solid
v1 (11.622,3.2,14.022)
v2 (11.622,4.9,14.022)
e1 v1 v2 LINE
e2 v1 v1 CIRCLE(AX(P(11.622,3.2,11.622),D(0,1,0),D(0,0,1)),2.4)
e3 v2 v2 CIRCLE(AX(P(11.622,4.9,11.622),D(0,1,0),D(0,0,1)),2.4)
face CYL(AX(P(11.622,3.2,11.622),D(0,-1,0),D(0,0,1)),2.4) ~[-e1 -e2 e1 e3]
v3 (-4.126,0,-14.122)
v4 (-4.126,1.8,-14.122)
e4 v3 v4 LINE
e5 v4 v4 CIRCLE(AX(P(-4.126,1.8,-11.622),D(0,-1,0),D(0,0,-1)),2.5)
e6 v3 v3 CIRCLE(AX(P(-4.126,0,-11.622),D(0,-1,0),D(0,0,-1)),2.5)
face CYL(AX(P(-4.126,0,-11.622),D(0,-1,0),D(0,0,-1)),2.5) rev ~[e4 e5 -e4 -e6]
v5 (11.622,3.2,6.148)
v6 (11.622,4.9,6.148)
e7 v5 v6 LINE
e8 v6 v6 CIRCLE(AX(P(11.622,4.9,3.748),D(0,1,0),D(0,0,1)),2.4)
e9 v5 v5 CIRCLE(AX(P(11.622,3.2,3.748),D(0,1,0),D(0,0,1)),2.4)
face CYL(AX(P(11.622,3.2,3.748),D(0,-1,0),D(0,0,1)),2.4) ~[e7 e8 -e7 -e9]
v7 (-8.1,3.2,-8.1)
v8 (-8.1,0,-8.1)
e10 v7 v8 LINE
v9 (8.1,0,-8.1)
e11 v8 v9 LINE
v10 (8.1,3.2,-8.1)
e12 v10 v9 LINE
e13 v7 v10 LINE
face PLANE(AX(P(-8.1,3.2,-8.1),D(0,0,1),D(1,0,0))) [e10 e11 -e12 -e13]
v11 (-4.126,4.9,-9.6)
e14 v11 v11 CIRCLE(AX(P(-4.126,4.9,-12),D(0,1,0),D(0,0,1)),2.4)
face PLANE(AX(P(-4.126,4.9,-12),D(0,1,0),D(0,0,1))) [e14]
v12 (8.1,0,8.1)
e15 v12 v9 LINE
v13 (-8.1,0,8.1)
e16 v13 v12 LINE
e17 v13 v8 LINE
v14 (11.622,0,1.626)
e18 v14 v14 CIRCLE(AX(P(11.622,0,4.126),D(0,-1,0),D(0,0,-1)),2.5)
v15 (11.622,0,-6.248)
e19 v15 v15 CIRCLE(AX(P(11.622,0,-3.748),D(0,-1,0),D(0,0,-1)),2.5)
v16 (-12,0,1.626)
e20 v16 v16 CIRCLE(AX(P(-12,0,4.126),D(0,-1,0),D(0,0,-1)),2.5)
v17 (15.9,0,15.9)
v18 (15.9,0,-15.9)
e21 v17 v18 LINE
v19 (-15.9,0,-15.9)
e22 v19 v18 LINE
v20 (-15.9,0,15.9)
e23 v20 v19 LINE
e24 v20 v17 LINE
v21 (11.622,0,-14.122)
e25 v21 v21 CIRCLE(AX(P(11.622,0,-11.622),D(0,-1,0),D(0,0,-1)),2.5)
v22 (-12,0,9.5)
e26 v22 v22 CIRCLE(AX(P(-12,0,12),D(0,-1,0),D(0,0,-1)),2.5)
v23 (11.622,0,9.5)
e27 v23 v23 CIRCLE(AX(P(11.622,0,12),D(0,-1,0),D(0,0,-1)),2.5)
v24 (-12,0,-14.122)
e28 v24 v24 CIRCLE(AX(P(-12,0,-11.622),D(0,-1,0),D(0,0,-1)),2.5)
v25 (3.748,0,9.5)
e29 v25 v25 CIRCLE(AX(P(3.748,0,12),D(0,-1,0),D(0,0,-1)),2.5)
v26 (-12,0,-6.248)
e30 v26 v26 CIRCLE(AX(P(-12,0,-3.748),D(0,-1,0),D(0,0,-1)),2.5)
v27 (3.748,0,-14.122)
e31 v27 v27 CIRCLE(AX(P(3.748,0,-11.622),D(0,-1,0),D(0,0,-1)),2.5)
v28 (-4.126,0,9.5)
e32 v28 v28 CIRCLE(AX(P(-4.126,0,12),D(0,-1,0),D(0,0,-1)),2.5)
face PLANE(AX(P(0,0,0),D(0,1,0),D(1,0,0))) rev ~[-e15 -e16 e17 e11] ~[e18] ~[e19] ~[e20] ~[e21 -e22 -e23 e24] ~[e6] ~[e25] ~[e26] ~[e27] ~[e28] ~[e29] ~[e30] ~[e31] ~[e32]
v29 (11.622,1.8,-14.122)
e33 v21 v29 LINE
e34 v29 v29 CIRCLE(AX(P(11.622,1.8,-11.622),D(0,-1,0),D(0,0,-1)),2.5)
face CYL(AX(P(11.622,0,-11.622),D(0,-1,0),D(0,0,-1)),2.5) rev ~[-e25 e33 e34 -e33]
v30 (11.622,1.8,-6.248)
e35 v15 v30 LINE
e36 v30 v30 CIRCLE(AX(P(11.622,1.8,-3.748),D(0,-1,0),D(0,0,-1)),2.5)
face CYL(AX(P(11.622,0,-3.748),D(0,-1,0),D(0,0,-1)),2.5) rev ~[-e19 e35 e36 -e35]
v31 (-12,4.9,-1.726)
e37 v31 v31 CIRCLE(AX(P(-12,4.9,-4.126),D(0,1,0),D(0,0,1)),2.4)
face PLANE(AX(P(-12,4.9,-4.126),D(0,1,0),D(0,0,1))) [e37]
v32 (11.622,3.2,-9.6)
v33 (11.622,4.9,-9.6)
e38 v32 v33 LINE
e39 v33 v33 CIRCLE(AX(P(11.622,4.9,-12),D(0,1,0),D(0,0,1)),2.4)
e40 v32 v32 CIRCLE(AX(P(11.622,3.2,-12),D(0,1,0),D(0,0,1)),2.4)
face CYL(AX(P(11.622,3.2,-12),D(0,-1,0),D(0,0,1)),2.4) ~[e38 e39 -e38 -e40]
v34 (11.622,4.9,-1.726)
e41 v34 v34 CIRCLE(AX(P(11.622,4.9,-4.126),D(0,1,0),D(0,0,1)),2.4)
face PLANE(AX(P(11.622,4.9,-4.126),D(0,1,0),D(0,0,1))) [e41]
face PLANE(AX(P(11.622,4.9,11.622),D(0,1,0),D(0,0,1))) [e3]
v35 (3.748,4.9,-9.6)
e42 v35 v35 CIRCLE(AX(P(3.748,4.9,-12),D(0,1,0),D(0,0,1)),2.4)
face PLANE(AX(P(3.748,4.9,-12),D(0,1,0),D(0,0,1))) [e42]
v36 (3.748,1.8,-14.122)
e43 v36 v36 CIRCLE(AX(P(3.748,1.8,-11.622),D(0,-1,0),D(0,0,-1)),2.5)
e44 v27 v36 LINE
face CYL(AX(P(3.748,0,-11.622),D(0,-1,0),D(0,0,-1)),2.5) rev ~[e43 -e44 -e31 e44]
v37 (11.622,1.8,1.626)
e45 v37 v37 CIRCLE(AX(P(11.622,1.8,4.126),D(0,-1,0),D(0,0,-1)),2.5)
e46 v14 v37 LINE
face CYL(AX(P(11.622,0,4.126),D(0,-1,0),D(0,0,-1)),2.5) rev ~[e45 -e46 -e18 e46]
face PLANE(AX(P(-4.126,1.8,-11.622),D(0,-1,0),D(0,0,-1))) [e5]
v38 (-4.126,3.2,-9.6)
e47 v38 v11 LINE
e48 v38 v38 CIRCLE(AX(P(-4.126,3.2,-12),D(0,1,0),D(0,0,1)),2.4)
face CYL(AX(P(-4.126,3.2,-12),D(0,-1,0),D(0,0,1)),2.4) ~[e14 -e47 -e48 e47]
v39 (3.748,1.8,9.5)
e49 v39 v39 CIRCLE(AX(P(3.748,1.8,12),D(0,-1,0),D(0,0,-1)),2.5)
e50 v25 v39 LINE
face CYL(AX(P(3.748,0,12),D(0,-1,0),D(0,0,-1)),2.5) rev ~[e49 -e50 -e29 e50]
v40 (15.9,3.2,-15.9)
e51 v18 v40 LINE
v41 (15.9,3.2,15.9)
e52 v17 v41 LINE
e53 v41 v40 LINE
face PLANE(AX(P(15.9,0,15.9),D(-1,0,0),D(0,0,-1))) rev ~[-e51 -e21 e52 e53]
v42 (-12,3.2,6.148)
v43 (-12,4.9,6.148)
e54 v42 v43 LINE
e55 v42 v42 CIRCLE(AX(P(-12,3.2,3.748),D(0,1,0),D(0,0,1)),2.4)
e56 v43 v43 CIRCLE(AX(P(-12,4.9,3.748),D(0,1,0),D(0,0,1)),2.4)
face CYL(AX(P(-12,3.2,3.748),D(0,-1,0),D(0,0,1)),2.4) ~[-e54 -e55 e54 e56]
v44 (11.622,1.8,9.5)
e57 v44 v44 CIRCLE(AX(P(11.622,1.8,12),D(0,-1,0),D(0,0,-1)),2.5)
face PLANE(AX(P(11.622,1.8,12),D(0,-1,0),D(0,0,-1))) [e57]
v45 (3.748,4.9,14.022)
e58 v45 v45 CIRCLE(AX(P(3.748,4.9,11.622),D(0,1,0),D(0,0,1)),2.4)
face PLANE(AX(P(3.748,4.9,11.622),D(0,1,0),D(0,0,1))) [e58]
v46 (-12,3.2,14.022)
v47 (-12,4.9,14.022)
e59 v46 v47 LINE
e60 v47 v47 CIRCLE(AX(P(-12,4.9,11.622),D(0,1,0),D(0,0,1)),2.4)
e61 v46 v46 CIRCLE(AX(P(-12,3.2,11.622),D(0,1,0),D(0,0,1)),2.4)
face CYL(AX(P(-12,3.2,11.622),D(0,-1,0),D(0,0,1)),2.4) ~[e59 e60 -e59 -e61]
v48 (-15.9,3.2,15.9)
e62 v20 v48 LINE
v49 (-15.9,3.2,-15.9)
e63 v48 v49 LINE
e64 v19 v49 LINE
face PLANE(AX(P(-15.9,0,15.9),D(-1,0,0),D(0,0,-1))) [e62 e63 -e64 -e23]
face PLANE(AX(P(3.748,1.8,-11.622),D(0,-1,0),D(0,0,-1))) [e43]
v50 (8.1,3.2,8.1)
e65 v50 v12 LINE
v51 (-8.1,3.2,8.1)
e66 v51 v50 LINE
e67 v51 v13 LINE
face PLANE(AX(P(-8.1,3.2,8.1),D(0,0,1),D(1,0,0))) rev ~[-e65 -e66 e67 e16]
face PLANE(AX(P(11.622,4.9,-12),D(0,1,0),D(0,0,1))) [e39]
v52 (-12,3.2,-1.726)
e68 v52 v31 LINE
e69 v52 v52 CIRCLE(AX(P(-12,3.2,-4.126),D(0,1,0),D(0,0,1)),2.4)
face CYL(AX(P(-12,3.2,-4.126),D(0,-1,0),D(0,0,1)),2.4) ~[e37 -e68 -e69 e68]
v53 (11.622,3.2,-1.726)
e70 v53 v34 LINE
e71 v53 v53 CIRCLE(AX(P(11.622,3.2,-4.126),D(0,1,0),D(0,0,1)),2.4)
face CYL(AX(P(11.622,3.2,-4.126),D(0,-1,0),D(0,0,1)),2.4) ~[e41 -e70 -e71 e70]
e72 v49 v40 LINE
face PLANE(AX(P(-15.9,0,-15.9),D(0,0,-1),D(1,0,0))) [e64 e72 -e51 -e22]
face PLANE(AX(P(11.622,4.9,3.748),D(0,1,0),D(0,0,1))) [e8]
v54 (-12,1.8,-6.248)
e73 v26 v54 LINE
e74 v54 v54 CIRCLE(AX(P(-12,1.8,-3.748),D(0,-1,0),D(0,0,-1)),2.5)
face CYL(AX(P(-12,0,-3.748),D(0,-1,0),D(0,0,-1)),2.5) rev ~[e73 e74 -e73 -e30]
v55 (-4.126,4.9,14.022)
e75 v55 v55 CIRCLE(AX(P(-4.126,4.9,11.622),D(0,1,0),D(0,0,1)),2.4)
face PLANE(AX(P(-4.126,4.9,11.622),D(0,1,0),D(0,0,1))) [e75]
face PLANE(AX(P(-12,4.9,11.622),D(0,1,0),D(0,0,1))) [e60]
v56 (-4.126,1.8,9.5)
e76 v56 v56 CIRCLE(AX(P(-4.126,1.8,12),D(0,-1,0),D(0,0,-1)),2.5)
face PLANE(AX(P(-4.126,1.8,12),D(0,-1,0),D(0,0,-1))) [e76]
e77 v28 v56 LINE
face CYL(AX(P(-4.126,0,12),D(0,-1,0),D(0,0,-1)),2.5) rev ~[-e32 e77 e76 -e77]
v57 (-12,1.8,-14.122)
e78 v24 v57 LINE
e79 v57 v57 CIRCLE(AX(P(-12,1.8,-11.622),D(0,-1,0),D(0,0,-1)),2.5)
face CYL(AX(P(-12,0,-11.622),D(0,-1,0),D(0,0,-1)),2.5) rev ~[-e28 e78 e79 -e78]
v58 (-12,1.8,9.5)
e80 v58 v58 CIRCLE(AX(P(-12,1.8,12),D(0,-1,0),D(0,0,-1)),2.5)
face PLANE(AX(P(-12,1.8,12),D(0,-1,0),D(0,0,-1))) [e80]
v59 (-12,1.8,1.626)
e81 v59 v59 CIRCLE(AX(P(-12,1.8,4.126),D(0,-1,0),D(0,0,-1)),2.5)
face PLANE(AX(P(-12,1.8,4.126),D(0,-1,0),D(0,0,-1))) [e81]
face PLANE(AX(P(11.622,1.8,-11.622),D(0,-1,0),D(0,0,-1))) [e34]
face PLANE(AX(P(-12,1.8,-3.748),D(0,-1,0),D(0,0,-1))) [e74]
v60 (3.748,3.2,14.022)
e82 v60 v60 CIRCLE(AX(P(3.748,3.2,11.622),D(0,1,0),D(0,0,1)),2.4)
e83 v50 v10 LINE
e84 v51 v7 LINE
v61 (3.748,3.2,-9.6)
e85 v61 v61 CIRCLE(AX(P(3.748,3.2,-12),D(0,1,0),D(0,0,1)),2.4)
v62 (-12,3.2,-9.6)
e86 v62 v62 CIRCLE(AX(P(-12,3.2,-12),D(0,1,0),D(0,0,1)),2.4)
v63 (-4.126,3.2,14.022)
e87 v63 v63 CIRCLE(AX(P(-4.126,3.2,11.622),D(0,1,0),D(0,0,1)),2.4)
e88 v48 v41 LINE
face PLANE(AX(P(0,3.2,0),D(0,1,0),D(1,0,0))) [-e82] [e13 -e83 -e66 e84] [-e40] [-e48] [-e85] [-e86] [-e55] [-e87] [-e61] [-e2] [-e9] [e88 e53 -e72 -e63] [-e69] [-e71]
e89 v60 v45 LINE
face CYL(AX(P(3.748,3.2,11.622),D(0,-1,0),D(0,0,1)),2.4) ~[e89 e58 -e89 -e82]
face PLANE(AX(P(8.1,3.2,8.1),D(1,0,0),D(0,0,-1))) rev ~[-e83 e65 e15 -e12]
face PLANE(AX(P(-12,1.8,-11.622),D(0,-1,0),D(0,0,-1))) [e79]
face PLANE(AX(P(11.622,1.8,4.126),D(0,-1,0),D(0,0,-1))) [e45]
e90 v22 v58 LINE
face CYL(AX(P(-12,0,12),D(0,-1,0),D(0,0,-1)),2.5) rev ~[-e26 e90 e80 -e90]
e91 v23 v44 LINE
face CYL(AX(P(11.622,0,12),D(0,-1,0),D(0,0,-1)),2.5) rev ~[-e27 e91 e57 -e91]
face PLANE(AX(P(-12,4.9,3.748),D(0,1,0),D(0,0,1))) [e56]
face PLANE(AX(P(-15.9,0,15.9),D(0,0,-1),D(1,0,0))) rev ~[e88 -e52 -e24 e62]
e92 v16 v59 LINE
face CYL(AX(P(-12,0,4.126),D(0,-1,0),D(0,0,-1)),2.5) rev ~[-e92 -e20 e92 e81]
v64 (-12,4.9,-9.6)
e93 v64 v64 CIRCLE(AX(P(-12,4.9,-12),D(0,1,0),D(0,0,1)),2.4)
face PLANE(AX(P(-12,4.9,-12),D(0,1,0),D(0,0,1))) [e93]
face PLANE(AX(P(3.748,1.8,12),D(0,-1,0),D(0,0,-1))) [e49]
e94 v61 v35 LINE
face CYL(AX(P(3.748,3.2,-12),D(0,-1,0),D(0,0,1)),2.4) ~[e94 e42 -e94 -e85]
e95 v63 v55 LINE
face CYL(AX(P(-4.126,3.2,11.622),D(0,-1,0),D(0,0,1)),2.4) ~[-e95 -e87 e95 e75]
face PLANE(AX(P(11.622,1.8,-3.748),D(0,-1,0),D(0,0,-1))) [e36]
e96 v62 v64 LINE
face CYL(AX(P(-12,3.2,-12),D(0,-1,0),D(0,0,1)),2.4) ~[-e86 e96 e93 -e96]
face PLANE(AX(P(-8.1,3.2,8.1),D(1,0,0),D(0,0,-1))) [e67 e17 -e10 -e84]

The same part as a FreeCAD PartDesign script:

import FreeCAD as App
import Part
import Sketcher

V = App.Vector
Q = App.Units.Quantity


def add_polygon(sketch, points):
    """Adds a closed chain of lines whose ends are joined by coincident constraints."""
    first, n = sketch.GeometryCount, len(points)
    for a, b in zip(points, points[1:] + points[:1]):
        sketch.addGeometry(Part.LineSegment(App.Vector(*a, 0), App.Vector(*b, 0)), False)
    for i in range(n):
        sketch.addConstraint(Sketcher.Constraint("Coincident", first + i, 2, first + (i + 1) % n, 1))

doc = App.newDocument("Part")
body = doc.addObject("PartDesign::Body", "Body")

# Sketch on XZ plane
sketch1 = body.newObject("Sketcher::SketchObject", "Sketch")
sketch1.AttachmentSupport = (doc.getObject("XZ_Plane"), [""])
sketch1.MapMode = "FlatFace"
add_polygon(sketch1, [(-16, -16), (-16, 16), (16, 16), (16, -16)])  # lines 0-3
sketch1.addConstraint([
    Sketcher.Constraint("Vertical", 0),
    Sketcher.Constraint("Horizontal", 1),
    Sketcher.Constraint("Vertical", 2),
    Sketcher.Constraint("Horizontal", 3),
    Sketcher.Constraint("Symmetric", 0, 2, 2, 2, -1, 1),
    Sketcher.Constraint("Equal", 3, 0),
    Sketcher.Constraint("DistanceX", 1, 1, 1, 2, Q("31.8 mm")),
])
pad1 = body.newObject("PartDesign::Pad", "Pad")
pad1.Profile = sketch1
pad1.Length = 3.2
pad1.Reversed = True

# Sketch on XZ plane
sketch2 = body.newObject("Sketcher::SketchObject", "Sketch001")
sketch2.AttachmentSupport = (doc.getObject("XZ_Plane"), [""])
sketch2.MapMode = "FlatFace"
sketch2.AttachmentOffset = App.Placement(V(0, 0, -3.2), App.Rotation())
add_polygon(sketch2, [(-8, -8), (-8, 8), (8, 8), (8, -8)])  # lines 0-3
sketch2.addConstraint([
    Sketcher.Constraint("Vertical", 0),
    Sketcher.Constraint("Horizontal", 1),
    Sketcher.Constraint("Vertical", 2),
    Sketcher.Constraint("Horizontal", 3),
    Sketcher.Constraint("Symmetric", 0, 2, 2, 2, -1, 1),
    Sketcher.Constraint("Equal", 3, 0),
    Sketcher.Constraint("DistanceX", 1, 1, 1, 2, Q("16.2 mm")),
])
pocket1 = body.newObject("PartDesign::Pocket", "Pocket")
pocket1.Profile = sketch2
pocket1.Type = "ThroughAll"
pocket1.Reversed = True

# Sketch on XZ plane
sketch3 = body.newObject("Sketcher::SketchObject", "Sketch002")
sketch3.AttachmentSupport = (doc.getObject("XZ_Plane"), [""])
sketch3.MapMode = "FlatFace"
sketch3.AttachmentOffset = App.Placement(V(0, 0, -3.2), App.Rotation())
sketch3.addGeometry([
    Part.Circle(V(-12, -12, 0), V(0, 0, 1), 2.4),  # 0
    Part.Circle(V(-4.1, -12, 0), V(0, 0, 1), 2.4),  # 1
    Part.Circle(V(3.7, -12, 0), V(0, 0, 1), 2.4),  # 2
    Part.Circle(V(11.6, -12, 0), V(0, 0, 1), 2.4),  # 3
    Part.Circle(V(-12, -4.1, 0), V(0, 0, 1), 2.4),  # 4
    Part.Circle(V(-12, 3.7, 0), V(0, 0, 1), 2.4),  # 5
    Part.Circle(V(-12, 11.6, 0), V(0, 0, 1), 2.4),  # 6
    Part.Circle(V(-4.1, 11.6, 0), V(0, 0, 1), 2.4),  # 7
    Part.Circle(V(3.7, 11.6, 0), V(0, 0, 1), 2.4),  # 8
    Part.Circle(V(11.6, 11.6, 0), V(0, 0, 1), 2.4),  # 9
    Part.Circle(V(11.6, 3.7, 0), V(0, 0, 1), 2.4),  # 10
    Part.Circle(V(11.6, -4.1, 0), V(0, 0, 1), 2.4),  # 11
], False)
sketch3.addConstraint([
    Sketcher.Constraint("Equal", 0, 1),
    Sketcher.Constraint("Equal", 1, 2),
    Sketcher.Constraint("Equal", 2, 3),
    Sketcher.Constraint("Equal", 3, 4),
    Sketcher.Constraint("Equal", 4, 5),
    Sketcher.Constraint("Equal", 5, 6),
    Sketcher.Constraint("Equal", 6, 7),
    Sketcher.Constraint("Equal", 7, 8),
    Sketcher.Constraint("Equal", 8, 9),
    Sketcher.Constraint("Equal", 9, 10),
    Sketcher.Constraint("Equal", 10, 11),
    Sketcher.Constraint("Horizontal", 0, 3, 1, 3),
    Sketcher.Constraint("Horizontal", 1, 3, 2, 3),
    Sketcher.Constraint("Horizontal", 2, 3, 3, 3),
    Sketcher.Constraint("Horizontal", 6, 3, 7, 3),
    Sketcher.Constraint("Horizontal", 7, 3, 8, 3),
    Sketcher.Constraint("Horizontal", 8, 3, 9, 3),
    Sketcher.Constraint("Horizontal", 5, 3, 10, 3),
    Sketcher.Constraint("Horizontal", 4, 3, 11, 3),
    Sketcher.Constraint("Vertical", 0, 3, 4, 3),
    Sketcher.Constraint("Vertical", 4, 3, 5, 3),
    Sketcher.Constraint("Vertical", 5, 3, 6, 3),
    Sketcher.Constraint("Vertical", 1, 3, 7, 3),
    Sketcher.Constraint("Vertical", 2, 3, 8, 3),
    Sketcher.Constraint("Vertical", 3, 3, 9, 3),
    Sketcher.Constraint("Vertical", 9, 3, 10, 3),
    Sketcher.Constraint("Vertical", 10, 3, 11, 3),
    Sketcher.Constraint("Diameter", 0, Q("4.8 mm")),
    Sketcher.Constraint("DistanceX", 0, 3, -1, 1, Q("12 mm")),
    Sketcher.Constraint("DistanceY", 0, 3, -1, 1, Q("12 mm")),
    Sketcher.Constraint("DistanceX", 1, 3, -1, 1, Q("4.126 mm")),
    Sketcher.Constraint("DistanceX", -1, 1, 2, 3, Q("3.748 mm")),
    Sketcher.Constraint("DistanceX", -1, 1, 3, 3, Q("11.622 mm")),
    Sketcher.Constraint("DistanceY", 4, 3, -1, 1, Q("4.126 mm")),
    Sketcher.Constraint("DistanceY", -1, 1, 5, 3, Q("3.748 mm")),
    Sketcher.Constraint("DistanceY", -1, 1, 6, 3, Q("11.622 mm")),
])
pad2 = body.newObject("PartDesign::Pad", "Pad001")
pad2.Profile = sketch3
pad2.Length = 1.7
pad2.Reversed = True

# Sketch on XZ plane
sketch4 = body.newObject("Sketcher::SketchObject", "Sketch003")
sketch4.AttachmentSupport = (doc.getObject("XZ_Plane"), [""])
sketch4.MapMode = "FlatFace"
sketch4.addGeometry([
    Part.Circle(V(-12, 12, 0), V(0, 0, 1), 2.5),  # 0
    Part.Circle(V(-4.1, 12, 0), V(0, 0, 1), 2.5),  # 1
    Part.Circle(V(3.7, 12, 0), V(0, 0, 1), 2.5),  # 2
    Part.Circle(V(11.6, 12, 0), V(0, 0, 1), 2.5),  # 3
    Part.Circle(V(-12, 4.1, 0), V(0, 0, 1), 2.5),  # 4
    Part.Circle(V(11.6, 4.1, 0), V(0, 0, 1), 2.5),  # 5
    Part.Circle(V(-12, -3.7, 0), V(0, 0, 1), 2.5),  # 6
    Part.Circle(V(11.6, -3.7, 0), V(0, 0, 1), 2.5),  # 7
    Part.Circle(V(-12, -11.6, 0), V(0, 0, 1), 2.5),  # 8
    Part.Circle(V(11.6, -11.6, 0), V(0, 0, 1), 2.5),  # 9
    Part.Circle(V(-4.1, -11.6, 0), V(0, 0, 1), 2.5),  # 10
    Part.Circle(V(3.7, -11.6, 0), V(0, 0, 1), 2.5),  # 11
], False)
sketch4.addConstraint([
    Sketcher.Constraint("Equal", 0, 1),
    Sketcher.Constraint("Equal", 1, 2),
    Sketcher.Constraint("Equal", 2, 3),
    Sketcher.Constraint("Equal", 3, 4),
    Sketcher.Constraint("Equal", 4, 5),
    Sketcher.Constraint("Equal", 5, 6),
    Sketcher.Constraint("Equal", 6, 7),
    Sketcher.Constraint("Equal", 7, 8),
    Sketcher.Constraint("Equal", 8, 9),
    Sketcher.Constraint("Equal", 9, 10),
    Sketcher.Constraint("Equal", 10, 11),
    Sketcher.Constraint("Horizontal", 0, 3, 1, 3),
    Sketcher.Constraint("Horizontal", 1, 3, 2, 3),
    Sketcher.Constraint("Horizontal", 2, 3, 3, 3),
    Sketcher.Constraint("Horizontal", 4, 3, 5, 3),
    Sketcher.Constraint("Horizontal", 6, 3, 7, 3),
    Sketcher.Constraint("Horizontal", 8, 3, 9, 3),
    Sketcher.Constraint("Horizontal", 9, 3, 10, 3),
    Sketcher.Constraint("Horizontal", 10, 3, 11, 3),
    Sketcher.Constraint("Vertical", 0, 3, 4, 3),
    Sketcher.Constraint("Vertical", 3, 3, 5, 3),
    Sketcher.Constraint("Vertical", 4, 3, 6, 3),
    Sketcher.Constraint("Vertical", 5, 3, 7, 3),
    Sketcher.Constraint("Vertical", 6, 3, 8, 3),
    Sketcher.Constraint("Vertical", 7, 3, 9, 3),
    Sketcher.Constraint("Vertical", 1, 3, 10, 3),
    Sketcher.Constraint("Vertical", 2, 3, 11, 3),
    Sketcher.Constraint("Diameter", 0, Q("5 mm")),
    Sketcher.Constraint("DistanceX", 0, 3, -1, 1, Q("12 mm")),
    Sketcher.Constraint("DistanceY", -1, 1, 0, 3, Q("12 mm")),
    Sketcher.Constraint("DistanceX", 1, 3, -1, 1, Q("4.126 mm")),
    Sketcher.Constraint("DistanceX", -1, 1, 2, 3, Q("3.748 mm")),
    Sketcher.Constraint("DistanceX", -1, 1, 3, 3, Q("11.622 mm")),
    Sketcher.Constraint("DistanceY", -1, 1, 4, 3, Q("4.126 mm")),
    Sketcher.Constraint("DistanceY", 6, 3, -1, 1, Q("3.748 mm")),
    Sketcher.Constraint("DistanceY", 8, 3, -1, 1, Q("11.622 mm")),
])
pocket2 = body.newObject("PartDesign::Pocket", "Pocket001")
pocket2.Profile = sketch4
pocket2.Length = 1.8

doc.recompute()
